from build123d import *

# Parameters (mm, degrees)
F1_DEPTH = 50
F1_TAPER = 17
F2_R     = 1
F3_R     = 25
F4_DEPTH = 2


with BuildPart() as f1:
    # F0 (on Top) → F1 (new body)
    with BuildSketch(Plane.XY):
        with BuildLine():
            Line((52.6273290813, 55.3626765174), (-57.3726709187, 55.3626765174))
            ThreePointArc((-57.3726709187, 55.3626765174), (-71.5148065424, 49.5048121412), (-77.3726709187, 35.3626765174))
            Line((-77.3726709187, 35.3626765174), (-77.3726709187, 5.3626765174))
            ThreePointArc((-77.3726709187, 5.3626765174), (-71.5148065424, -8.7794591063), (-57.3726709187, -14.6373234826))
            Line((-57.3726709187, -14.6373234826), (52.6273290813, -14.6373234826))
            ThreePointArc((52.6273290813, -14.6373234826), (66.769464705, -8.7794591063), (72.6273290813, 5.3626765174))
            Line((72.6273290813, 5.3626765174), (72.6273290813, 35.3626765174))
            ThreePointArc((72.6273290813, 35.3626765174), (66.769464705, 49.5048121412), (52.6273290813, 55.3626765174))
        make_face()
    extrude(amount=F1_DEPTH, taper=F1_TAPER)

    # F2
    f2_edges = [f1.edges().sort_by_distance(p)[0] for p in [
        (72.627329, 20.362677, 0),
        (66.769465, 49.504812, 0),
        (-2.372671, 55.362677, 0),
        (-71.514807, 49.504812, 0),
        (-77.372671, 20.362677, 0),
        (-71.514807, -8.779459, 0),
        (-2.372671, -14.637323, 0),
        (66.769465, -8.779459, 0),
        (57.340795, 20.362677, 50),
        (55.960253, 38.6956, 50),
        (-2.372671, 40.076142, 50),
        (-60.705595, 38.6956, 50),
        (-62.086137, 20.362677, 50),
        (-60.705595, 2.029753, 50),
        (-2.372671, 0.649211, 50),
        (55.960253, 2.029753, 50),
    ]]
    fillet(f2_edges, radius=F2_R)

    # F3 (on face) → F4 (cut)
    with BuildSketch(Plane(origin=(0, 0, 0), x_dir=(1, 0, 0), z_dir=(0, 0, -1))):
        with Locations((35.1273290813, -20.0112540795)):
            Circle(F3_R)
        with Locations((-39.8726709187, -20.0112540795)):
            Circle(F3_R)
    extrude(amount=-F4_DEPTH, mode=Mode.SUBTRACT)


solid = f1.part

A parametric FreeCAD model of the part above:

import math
import FreeCAD as App
import Part
import Sketcher


def edges_at(feature, points):
    """Names of the edges that pass closest to the given points."""
    edges = feature.Shape.Edges
    near = lambda p: min(range(len(edges)), key=lambda i: edges[i].distToShape(Part.Vertex(*p))[0])
    return sorted({f"Edge{near(p) + 1}" for p in points})

doc = App.newDocument("Part")
body = doc.addObject("PartDesign::Body", "Body")

# Sketch on XY plane
sketch1 = body.newObject("Sketcher::SketchObject", "Sketch")
sketch1.AttachmentSupport = (doc.getObject("XY_Plane"), [""])
sketch1.MapMode = "FlatFace"
sketch1.addGeometry([
    Part.LineSegment(App.Vector(52.627329, 55.362677, 0), App.Vector(-57.372671, 55.362677, 0)),  # 0
    Part.ArcOfCircle(Part.Circle(App.Vector(-57.372671, 35.362677, 0), App.Vector(0, 0, 1), 20), math.radians(90), math.radians(180)),  # 1
    Part.LineSegment(App.Vector(-77.372671, 35.362677, 0), App.Vector(-77.372671, 5.362677, 0)),  # 2
    Part.ArcOfCircle(Part.Circle(App.Vector(-57.372671, 5.362677, 0), App.Vector(0, 0, 1), 20), math.radians(-180), math.radians(-90)),  # 3
    Part.LineSegment(App.Vector(-57.372671, -14.637323, 0), App.Vector(52.627329, -14.637323, 0)),  # 4
    Part.ArcOfCircle(Part.Circle(App.Vector(52.627329, 5.362677, 0), App.Vector(0, 0, 1), 20), math.radians(-90), math.radians(0)),  # 5
    Part.LineSegment(App.Vector(72.627329, 5.362677, 0), App.Vector(72.627329, 35.362677, 0)),  # 6
    Part.ArcOfCircle(Part.Circle(App.Vector(52.627329, 35.362677, 0), App.Vector(0, 0, 1), 20), math.radians(0), math.radians(90)),  # 7
], False)
sketch1.addConstraint([
    Sketcher.Constraint("Tangent", 0, 2, 1, 1),
    Sketcher.Constraint("Tangent", 1, 2, 2, 1),
    Sketcher.Constraint("Tangent", 2, 2, 3, 1),
    Sketcher.Constraint("Tangent", 3, 2, 4, 1),
    Sketcher.Constraint("Tangent", 4, 2, 5, 1),
    Sketcher.Constraint("Tangent", 5, 2, 6, 1),
    Sketcher.Constraint("Tangent", 6, 2, 7, 1),
    Sketcher.Constraint("Tangent", 7, 2, 0, 1),
    Sketcher.Constraint("Horizontal", 0),
    Sketcher.Constraint("Vertical", 2),
    Sketcher.Constraint("Horizontal", 4),
    Sketcher.Constraint("Vertical", 6),
    Sketcher.Constraint("Equal", 1, 3),
    Sketcher.Constraint("Equal", 3, 5),
    Sketcher.Constraint("Equal", 5, 7),
    Sketcher.Constraint("Radius", 1, 20.0),
    Sketcher.Constraint("DistanceX", 0, 2, 0, 1, 110.0),
    Sketcher.Constraint("DistanceY", 2, 2, 2, 1, 30.0),
    Sketcher.Constraint("DistanceX", 1, 3, -1, 1, 57.372671),
    Sketcher.Constraint("DistanceY", -1, 1, 1, 3, 35.362677),
])
pad1 = body.newObject("PartDesign::Pad", "Pad")
pad1.Profile = sketch1
pad1.Length = 50
pad1.TaperAngle = -17
doc.recompute()

fillet = body.newObject("PartDesign::Fillet", "Fillet")
fillet.Base = (pad1, edges_at(pad1, [
    (72.627, 20.363, 0),
    (66.769, 49.505, 0),
    (-2.373, 55.363, 0),
    (-71.515, 49.505, 0),
    (-77.373, 20.363, 0),
    (-71.515, -8.779, 0),
    (-2.373, -14.637, 0),
    (66.769, -8.779, 0),
    (57.341, 20.363, 50),
    (55.96, 38.696, 50),
    (-2.373, 40.076, 50),
    (-60.706, 38.696, 50),
    (-62.086, 20.363, 50),
    (-60.706, 2.03, 50),
    (-2.373, 0.649, 50),
    (55.96, 2.03, 50),
]))
fillet.Radius = 1

# Sketch on XY plane
sketch2 = body.newObject("Sketcher::SketchObject", "Sketch001")
sketch2.AttachmentSupport = (doc.getObject("XY_Plane"), [""])
sketch2.MapMode = "FlatFace"
sketch2.addGeometry([
    Part.Circle(App.Vector(35.127329, 20.011254, 0), App.Vector(0, 0, 1), 25),
    Part.Circle(App.Vector(-39.872671, 20.011254, 0), App.Vector(0, 0, 1), 25),
], False)
sketch2.addConstraint([
    Sketcher.Constraint("Equal", 0, 1),
    Sketcher.Constraint("Horizontal", 0, 3, 1, 3),
    Sketcher.Constraint("Diameter", 0, 50.0),
    Sketcher.Constraint("DistanceX", 1, 3, 0, 3, 75.0),
    Sketcher.Constraint("DistanceX", -1, 1, 0, 3, 35.127329),
    Sketcher.Constraint("DistanceY", -1, 1, 0, 3, 20.011254),
])
pocket1 = body.newObject("PartDesign::Pocket", "Pocket")
pocket1.Profile = sketch2
pocket1.Length = 2
pocket1.Reversed = True

doc.recompute()
